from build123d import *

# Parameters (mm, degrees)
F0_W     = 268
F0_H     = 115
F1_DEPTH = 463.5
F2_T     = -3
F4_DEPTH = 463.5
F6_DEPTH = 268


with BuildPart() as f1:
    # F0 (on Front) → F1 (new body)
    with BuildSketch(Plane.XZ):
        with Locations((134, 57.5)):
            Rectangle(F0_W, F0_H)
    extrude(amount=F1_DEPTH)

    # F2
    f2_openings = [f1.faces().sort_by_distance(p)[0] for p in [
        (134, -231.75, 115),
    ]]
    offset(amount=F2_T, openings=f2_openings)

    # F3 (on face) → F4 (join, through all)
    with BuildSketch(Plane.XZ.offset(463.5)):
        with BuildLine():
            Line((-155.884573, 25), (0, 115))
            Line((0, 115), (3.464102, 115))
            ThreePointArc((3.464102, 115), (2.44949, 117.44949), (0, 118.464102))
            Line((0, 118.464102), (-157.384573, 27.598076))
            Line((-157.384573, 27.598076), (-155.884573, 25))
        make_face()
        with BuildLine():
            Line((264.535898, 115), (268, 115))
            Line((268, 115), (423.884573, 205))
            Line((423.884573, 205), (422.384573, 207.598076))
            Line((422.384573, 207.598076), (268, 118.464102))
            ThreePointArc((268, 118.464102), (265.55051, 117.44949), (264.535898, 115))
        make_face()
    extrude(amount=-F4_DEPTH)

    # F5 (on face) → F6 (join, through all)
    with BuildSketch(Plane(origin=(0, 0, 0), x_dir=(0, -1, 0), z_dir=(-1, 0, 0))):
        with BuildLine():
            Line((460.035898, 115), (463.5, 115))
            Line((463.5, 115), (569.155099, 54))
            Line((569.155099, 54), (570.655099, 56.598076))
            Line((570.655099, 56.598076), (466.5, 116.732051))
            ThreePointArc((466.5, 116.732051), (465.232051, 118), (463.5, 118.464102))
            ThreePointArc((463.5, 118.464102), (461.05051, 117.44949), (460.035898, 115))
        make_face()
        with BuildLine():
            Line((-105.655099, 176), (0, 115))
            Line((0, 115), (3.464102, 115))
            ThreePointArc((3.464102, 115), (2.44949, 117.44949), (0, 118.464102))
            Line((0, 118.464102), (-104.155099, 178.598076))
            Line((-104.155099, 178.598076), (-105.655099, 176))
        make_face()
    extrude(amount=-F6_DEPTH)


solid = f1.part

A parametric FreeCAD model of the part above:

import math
import FreeCAD as App
import Part
import Sketcher

V = App.Vector
Q = App.Units.Quantity


def faces_at(feature, points):
    """Names of the faces that lie closest to the given points."""
    faces = feature.Shape.Faces
    near = lambda p: min(range(len(faces)), key=lambda i: faces[i].distToShape(Part.Vertex(*p))[0])
    return sorted({f"Face{near(p) + 1}" for p in points})

doc = App.newDocument("Part")
body = doc.addObject("PartDesign::Body", "Body")

# Sketch on XZ plane
sketch1 = body.newObject("Sketcher::SketchObject", "Sketch")
sketch1.AttachmentSupport = (doc.getObject("XZ_Plane"), [""])
sketch1.MapMode = "FlatFace"
sketch1.addGeometry(Part.LineSegment(V(0, 115, 0), V(0, 0, 0)), False)
sketch1.addGeometry(Part.LineSegment(V(0, 0, 0), V(268, 0, 0)), False)
sketch1.addGeometry(Part.LineSegment(V(268, 0, 0), V(268, 115, 0)), False)
sketch1.addGeometry(Part.LineSegment(V(268, 115, 0), V(0, 115, 0)), False)
sketch1.addConstraint(Sketcher.Constraint("Coincident", 0, 2, 1, 1))
sketch1.addConstraint(Sketcher.Constraint("Coincident", 1, 2, 2, 1))
sketch1.addConstraint(Sketcher.Constraint("Coincident", 2, 2, 3, 1))
sketch1.addConstraint(Sketcher.Constraint("Coincident", 3, 2, 0, 1))
sketch1.addConstraint(Sketcher.Constraint("Vertical", 0))
sketch1.addConstraint(Sketcher.Constraint("Horizontal", 1))
sketch1.addConstraint(Sketcher.Constraint("Vertical", 2))
sketch1.addConstraint(Sketcher.Constraint("Horizontal", 3))
sketch1.addConstraint(Sketcher.Constraint("Coincident", 0, 2, -1, 1))
sketch1.addConstraint(Sketcher.Constraint("DistanceX", 1, 1, 1, 2, Q("268 mm")))
sketch1.addConstraint(Sketcher.Constraint("DistanceY", 0, 2, 0, 1, Q("115 mm")))
pad1 = body.newObject("PartDesign::Pad", "Pad")
pad1.Profile = sketch1
pad1.Length = 463.5
doc.recompute()

thickness = body.newObject("PartDesign::Thickness", "Thickness")
thickness.Base = (pad1, faces_at(pad1, [(134, -231.75, 115)]))
thickness.Value = 3
thickness.Reversed = True
thickness.Join = "Arc"

# Sketch on XZ plane
sketch2 = body.newObject("Sketcher::SketchObject", "Sketch001")
sketch2.AttachmentSupport = (doc.getObject("XZ_Plane"), [""])
sketch2.MapMode = "FlatFace"
sketch2.AttachmentOffset = App.Placement(V(0, 0, 463.5), App.Rotation())
sketch2.addGeometry(Part.LineSegment(V(-155.9, 25, 0), V(0, 115, 0)), False)
sketch2.addGeometry(Part.LineSegment(V(0, 115, 0), V(3.5, 115, 0)), False)
sketch2.addGeometry(Part.ArcOfCircle(Part.Circle(V(0, 115, 0), V(0, 0, 1), 3.5), math.radians(0), math.radians(90)), False)
sketch2.addGeometry(Part.LineSegment(V(0, 118.5, 0), V(-157.4, 27.6, 0)), False)
sketch2.addGeometry(Part.LineSegment(V(-157.4, 27.6, 0), V(-155.9, 25, 0)), False)
sketch2.addGeometry(Part.LineSegment(V(264.5, 115, 0), V(268, 115, 0)), False)
sketch2.addGeometry(Part.LineSegment(V(268, 115, 0), V(423.9, 205, 0)), False)
sketch2.addGeometry(Part.LineSegment(V(423.9, 205, 0), V(422.4, 207.6, 0)), False)
sketch2.addGeometry(Part.LineSegment(V(422.4, 207.6, 0), V(268, 118.5, 0)), False)
sketch2.addGeometry(Part.ArcOfCircle(Part.Circle(V(268, 115, 0), V(0, 0, 1), 3.5), math.radians(90), math.radians(180)), False)
sketch2.addConstraint(Sketcher.Constraint("Coincident", 0, 2, 1, 1))
sketch2.addConstraint(Sketcher.Constraint("Coincident", 1, 2, 2, 1))
sketch2.addConstraint(Sketcher.Constraint("Coincident", 2, 2, 3, 1))
sketch2.addConstraint(Sketcher.Constraint("Coincident", 3, 2, 4, 1))
sketch2.addConstraint(Sketcher.Constraint("Coincident", 4, 2, 0, 1))
sketch2.addConstraint(Sketcher.Constraint("Coincident", 5, 2, 6, 1))
sketch2.addConstraint(Sketcher.Constraint("Coincident", 6, 2, 7, 1))
sketch2.addConstraint(Sketcher.Constraint("Coincident", 7, 2, 8, 1))
sketch2.addConstraint(Sketcher.Constraint("Coincident", 8, 2, 9, 1))
sketch2.addConstraint(Sketcher.Constraint("Coincident", 9, 2, 5, 1))
sketch2.addConstraint(Sketcher.Constraint("Horizontal", 1))
sketch2.addConstraint(Sketcher.Constraint("Horizontal", 5))
sketch2.addConstraint(Sketcher.Constraint("Coincident", 0, 2, 2, 3))
sketch2.addConstraint(Sketcher.Constraint("Coincident", 5, 2, 9, 3))
sketch2.addConstraint(Sketcher.Constraint("Equal", 2, 9))
sketch2.addConstraint(Sketcher.Constraint("PointOnObject", 2, 3, -2))
sketch2.addConstraint(Sketcher.Constraint("PointOnObject", 2, 2, -2))
sketch2.addConstraint(Sketcher.Constraint("Parallel", 0, 3))
sketch2.addConstraint(Sketcher.Constraint("Perpendicular", 3, 4))
sketch2.addConstraint(Sketcher.Constraint("Perpendicular", 4, 6))
sketch2.addConstraint(Sketcher.Constraint("Perpendicular", 6, 7))
sketch2.addConstraint(Sketcher.Constraint("Perpendicular", 7, 8))
sketch2.addConstraint(Sketcher.Constraint("Horizontal", 2, 3, 9, 3))
sketch2.addConstraint(Sketcher.Constraint("Vertical", 5, 2, 8, 2))
sketch2.addConstraint(Sketcher.Constraint("Equal", 0, 6))
sketch2.addConstraint(Sketcher.Constraint("Angle", 0, Q("30 deg")))
sketch2.addConstraint(Sketcher.Constraint("Distance", 0, Q("180 mm")))
sketch2.addConstraint(Sketcher.Constraint("Distance", 4, Q("3 mm")))
sketch2.addConstraint(Sketcher.Constraint("DistanceY", -1, 1, 2, 3, Q("115 mm")))
sketch2.addConstraint(Sketcher.Constraint("DistanceX", -1, 1, 9, 3, Q("268 mm")))
pad2 = body.newObject("PartDesign::Pad", "Pad001")
pad2.Profile = sketch2
pad2.Length = 463.5
pad2.Reversed = True

# Sketch on YZ plane
sketch3 = body.newObject("Sketcher::SketchObject", "Sketch002")
sketch3.AttachmentSupport = (doc.getObject("YZ_Plane"), [""])
sketch3.MapMode = "FlatFace"
sketch3.addGeometry(Part.LineSegment(V(-460, 115, 0), V(-463.5, 115, 0)), False)
sketch3.addGeometry(Part.LineSegment(V(-463.5, 115, 0), V(-569.2, 54, 0)), False)
sketch3.addGeometry(Part.LineSegment(V(-569.2, 54, 0), V(-570.7, 56.6, 0)), False)
sketch3.addGeometry(Part.LineSegment(V(-570.7, 56.6, 0), V(-466.5, 116.7, 0)), False)
sketch3.addGeometry(Part.ArcOfCircle(Part.Circle(V(-463.5, 115, 0), V(0, 0, 1), 3.5), math.radians(90), math.radians(150)), False)
sketch3.addGeometry(Part.ArcOfCircle(Part.Circle(V(-463.5, 115, 0), V(0, 0, 1), 3.5), math.radians(0), math.radians(90)), False)
sketch3.addGeometry(Part.LineSegment(V(105.7, 176, 0), V(0, 115, 0)), False)
sketch3.addGeometry(Part.LineSegment(V(0, 115, 0), V(-3.5, 115, 0)), False)
sketch3.addGeometry(Part.ArcOfCircle(Part.Circle(V(0, 115, 0), V(0, 0, 1), 3.5), math.radians(90), math.radians(180)), False)
sketch3.addGeometry(Part.LineSegment(V(0, 118.5, 0), V(104.2, 178.6, 0)), False)
sketch3.addGeometry(Part.LineSegment(V(104.2, 178.6, 0), V(105.7, 176, 0)), False)
sketch3.addConstraint(Sketcher.Constraint("Coincident", 0, 2, 1, 1))
sketch3.addConstraint(Sketcher.Constraint("Coincident", 1, 2, 2, 1))
sketch3.addConstraint(Sketcher.Constraint("Coincident", 2, 2, 3, 1))
sketch3.addConstraint(Sketcher.Constraint("Coincident", 3, 2, 4, 2))
sketch3.addConstraint(Sketcher.Constraint("Tangent", 4, 1, 5, 2))
sketch3.addConstraint(Sketcher.Constraint("Coincident", 5, 1, 0, 1))
sketch3.addConstraint(Sketcher.Constraint("Coincident", 6, 2, 7, 1))
sketch3.addConstraint(Sketcher.Constraint("Coincident", 7, 2, 8, 2))
sketch3.addConstraint(Sketcher.Constraint("Coincident", 8, 1, 9, 1))
sketch3.addConstraint(Sketcher.Constraint("Coincident", 9, 2, 10, 1))
sketch3.addConstraint(Sketcher.Constraint("Coincident", 10, 2, 6, 1))
sketch3.addConstraint(Sketcher.Constraint("Horizontal", 0))
sketch3.addConstraint(Sketcher.Constraint("Horizontal", 7))
sketch3.addConstraint(Sketcher.Constraint("Coincident", 0, 2, 4, 3))
sketch3.addConstraint(Sketcher.Constraint("Coincident", 6, 2, 8, 3))
sketch3.addConstraint(Sketcher.Constraint("Equal", 4, 5))
sketch3.addConstraint(Sketcher.Constraint("Equal", 5, 8))
sketch3.addConstraint(Sketcher.Constraint("PointOnObject", 8, 3, -2))
sketch3.addConstraint(Sketcher.Constraint("PointOnObject", 8, 1, -2))
sketch3.addConstraint(Sketcher.Constraint("Perpendicular", 1, 2))
sketch3.addConstraint(Sketcher.Constraint("Perpendicular", 2, 3))
sketch3.addConstraint(Sketcher.Constraint("Parallel", 3, 6))
sketch3.addConstraint(Sketcher.Constraint("Parallel", 6, 9))
sketch3.addConstraint(Sketcher.Constraint("Perpendicular", 9, 10))
sketch3.addConstraint(Sketcher.Constraint("Horizontal", 5, 3, 8, 3))
sketch3.addConstraint(Sketcher.Constraint("Vertical", 0, 2, 4, 1))
sketch3.addConstraint(Sketcher.Constraint("Equal", 1, 6))
sketch3.addConstraint(Sketcher.Constraint("Equal", 3, 9))
sketch3.addConstraint(Sketcher.Constraint("Angle", 1, Q("-150 deg")))
sketch3.addConstraint(Sketcher.Constraint("Distance", 1, Q("122 mm")))
sketch3.addConstraint(Sketcher.Constraint("Distance", 2, Q("3 mm")))
sketch3.addConstraint(Sketcher.Constraint("DistanceY", -1, 1, 4, 3, Q("114.999999 mm")))
sketch3.addConstraint(Sketcher.Constraint("DistanceX", 4, 3, -1, 1, Q("463.499999 mm")))
pad3 = body.newObject("PartDesign::Pad", "Pad002")
pad3.Profile = sketch3
pad3.Length = 268

doc.recompute()
